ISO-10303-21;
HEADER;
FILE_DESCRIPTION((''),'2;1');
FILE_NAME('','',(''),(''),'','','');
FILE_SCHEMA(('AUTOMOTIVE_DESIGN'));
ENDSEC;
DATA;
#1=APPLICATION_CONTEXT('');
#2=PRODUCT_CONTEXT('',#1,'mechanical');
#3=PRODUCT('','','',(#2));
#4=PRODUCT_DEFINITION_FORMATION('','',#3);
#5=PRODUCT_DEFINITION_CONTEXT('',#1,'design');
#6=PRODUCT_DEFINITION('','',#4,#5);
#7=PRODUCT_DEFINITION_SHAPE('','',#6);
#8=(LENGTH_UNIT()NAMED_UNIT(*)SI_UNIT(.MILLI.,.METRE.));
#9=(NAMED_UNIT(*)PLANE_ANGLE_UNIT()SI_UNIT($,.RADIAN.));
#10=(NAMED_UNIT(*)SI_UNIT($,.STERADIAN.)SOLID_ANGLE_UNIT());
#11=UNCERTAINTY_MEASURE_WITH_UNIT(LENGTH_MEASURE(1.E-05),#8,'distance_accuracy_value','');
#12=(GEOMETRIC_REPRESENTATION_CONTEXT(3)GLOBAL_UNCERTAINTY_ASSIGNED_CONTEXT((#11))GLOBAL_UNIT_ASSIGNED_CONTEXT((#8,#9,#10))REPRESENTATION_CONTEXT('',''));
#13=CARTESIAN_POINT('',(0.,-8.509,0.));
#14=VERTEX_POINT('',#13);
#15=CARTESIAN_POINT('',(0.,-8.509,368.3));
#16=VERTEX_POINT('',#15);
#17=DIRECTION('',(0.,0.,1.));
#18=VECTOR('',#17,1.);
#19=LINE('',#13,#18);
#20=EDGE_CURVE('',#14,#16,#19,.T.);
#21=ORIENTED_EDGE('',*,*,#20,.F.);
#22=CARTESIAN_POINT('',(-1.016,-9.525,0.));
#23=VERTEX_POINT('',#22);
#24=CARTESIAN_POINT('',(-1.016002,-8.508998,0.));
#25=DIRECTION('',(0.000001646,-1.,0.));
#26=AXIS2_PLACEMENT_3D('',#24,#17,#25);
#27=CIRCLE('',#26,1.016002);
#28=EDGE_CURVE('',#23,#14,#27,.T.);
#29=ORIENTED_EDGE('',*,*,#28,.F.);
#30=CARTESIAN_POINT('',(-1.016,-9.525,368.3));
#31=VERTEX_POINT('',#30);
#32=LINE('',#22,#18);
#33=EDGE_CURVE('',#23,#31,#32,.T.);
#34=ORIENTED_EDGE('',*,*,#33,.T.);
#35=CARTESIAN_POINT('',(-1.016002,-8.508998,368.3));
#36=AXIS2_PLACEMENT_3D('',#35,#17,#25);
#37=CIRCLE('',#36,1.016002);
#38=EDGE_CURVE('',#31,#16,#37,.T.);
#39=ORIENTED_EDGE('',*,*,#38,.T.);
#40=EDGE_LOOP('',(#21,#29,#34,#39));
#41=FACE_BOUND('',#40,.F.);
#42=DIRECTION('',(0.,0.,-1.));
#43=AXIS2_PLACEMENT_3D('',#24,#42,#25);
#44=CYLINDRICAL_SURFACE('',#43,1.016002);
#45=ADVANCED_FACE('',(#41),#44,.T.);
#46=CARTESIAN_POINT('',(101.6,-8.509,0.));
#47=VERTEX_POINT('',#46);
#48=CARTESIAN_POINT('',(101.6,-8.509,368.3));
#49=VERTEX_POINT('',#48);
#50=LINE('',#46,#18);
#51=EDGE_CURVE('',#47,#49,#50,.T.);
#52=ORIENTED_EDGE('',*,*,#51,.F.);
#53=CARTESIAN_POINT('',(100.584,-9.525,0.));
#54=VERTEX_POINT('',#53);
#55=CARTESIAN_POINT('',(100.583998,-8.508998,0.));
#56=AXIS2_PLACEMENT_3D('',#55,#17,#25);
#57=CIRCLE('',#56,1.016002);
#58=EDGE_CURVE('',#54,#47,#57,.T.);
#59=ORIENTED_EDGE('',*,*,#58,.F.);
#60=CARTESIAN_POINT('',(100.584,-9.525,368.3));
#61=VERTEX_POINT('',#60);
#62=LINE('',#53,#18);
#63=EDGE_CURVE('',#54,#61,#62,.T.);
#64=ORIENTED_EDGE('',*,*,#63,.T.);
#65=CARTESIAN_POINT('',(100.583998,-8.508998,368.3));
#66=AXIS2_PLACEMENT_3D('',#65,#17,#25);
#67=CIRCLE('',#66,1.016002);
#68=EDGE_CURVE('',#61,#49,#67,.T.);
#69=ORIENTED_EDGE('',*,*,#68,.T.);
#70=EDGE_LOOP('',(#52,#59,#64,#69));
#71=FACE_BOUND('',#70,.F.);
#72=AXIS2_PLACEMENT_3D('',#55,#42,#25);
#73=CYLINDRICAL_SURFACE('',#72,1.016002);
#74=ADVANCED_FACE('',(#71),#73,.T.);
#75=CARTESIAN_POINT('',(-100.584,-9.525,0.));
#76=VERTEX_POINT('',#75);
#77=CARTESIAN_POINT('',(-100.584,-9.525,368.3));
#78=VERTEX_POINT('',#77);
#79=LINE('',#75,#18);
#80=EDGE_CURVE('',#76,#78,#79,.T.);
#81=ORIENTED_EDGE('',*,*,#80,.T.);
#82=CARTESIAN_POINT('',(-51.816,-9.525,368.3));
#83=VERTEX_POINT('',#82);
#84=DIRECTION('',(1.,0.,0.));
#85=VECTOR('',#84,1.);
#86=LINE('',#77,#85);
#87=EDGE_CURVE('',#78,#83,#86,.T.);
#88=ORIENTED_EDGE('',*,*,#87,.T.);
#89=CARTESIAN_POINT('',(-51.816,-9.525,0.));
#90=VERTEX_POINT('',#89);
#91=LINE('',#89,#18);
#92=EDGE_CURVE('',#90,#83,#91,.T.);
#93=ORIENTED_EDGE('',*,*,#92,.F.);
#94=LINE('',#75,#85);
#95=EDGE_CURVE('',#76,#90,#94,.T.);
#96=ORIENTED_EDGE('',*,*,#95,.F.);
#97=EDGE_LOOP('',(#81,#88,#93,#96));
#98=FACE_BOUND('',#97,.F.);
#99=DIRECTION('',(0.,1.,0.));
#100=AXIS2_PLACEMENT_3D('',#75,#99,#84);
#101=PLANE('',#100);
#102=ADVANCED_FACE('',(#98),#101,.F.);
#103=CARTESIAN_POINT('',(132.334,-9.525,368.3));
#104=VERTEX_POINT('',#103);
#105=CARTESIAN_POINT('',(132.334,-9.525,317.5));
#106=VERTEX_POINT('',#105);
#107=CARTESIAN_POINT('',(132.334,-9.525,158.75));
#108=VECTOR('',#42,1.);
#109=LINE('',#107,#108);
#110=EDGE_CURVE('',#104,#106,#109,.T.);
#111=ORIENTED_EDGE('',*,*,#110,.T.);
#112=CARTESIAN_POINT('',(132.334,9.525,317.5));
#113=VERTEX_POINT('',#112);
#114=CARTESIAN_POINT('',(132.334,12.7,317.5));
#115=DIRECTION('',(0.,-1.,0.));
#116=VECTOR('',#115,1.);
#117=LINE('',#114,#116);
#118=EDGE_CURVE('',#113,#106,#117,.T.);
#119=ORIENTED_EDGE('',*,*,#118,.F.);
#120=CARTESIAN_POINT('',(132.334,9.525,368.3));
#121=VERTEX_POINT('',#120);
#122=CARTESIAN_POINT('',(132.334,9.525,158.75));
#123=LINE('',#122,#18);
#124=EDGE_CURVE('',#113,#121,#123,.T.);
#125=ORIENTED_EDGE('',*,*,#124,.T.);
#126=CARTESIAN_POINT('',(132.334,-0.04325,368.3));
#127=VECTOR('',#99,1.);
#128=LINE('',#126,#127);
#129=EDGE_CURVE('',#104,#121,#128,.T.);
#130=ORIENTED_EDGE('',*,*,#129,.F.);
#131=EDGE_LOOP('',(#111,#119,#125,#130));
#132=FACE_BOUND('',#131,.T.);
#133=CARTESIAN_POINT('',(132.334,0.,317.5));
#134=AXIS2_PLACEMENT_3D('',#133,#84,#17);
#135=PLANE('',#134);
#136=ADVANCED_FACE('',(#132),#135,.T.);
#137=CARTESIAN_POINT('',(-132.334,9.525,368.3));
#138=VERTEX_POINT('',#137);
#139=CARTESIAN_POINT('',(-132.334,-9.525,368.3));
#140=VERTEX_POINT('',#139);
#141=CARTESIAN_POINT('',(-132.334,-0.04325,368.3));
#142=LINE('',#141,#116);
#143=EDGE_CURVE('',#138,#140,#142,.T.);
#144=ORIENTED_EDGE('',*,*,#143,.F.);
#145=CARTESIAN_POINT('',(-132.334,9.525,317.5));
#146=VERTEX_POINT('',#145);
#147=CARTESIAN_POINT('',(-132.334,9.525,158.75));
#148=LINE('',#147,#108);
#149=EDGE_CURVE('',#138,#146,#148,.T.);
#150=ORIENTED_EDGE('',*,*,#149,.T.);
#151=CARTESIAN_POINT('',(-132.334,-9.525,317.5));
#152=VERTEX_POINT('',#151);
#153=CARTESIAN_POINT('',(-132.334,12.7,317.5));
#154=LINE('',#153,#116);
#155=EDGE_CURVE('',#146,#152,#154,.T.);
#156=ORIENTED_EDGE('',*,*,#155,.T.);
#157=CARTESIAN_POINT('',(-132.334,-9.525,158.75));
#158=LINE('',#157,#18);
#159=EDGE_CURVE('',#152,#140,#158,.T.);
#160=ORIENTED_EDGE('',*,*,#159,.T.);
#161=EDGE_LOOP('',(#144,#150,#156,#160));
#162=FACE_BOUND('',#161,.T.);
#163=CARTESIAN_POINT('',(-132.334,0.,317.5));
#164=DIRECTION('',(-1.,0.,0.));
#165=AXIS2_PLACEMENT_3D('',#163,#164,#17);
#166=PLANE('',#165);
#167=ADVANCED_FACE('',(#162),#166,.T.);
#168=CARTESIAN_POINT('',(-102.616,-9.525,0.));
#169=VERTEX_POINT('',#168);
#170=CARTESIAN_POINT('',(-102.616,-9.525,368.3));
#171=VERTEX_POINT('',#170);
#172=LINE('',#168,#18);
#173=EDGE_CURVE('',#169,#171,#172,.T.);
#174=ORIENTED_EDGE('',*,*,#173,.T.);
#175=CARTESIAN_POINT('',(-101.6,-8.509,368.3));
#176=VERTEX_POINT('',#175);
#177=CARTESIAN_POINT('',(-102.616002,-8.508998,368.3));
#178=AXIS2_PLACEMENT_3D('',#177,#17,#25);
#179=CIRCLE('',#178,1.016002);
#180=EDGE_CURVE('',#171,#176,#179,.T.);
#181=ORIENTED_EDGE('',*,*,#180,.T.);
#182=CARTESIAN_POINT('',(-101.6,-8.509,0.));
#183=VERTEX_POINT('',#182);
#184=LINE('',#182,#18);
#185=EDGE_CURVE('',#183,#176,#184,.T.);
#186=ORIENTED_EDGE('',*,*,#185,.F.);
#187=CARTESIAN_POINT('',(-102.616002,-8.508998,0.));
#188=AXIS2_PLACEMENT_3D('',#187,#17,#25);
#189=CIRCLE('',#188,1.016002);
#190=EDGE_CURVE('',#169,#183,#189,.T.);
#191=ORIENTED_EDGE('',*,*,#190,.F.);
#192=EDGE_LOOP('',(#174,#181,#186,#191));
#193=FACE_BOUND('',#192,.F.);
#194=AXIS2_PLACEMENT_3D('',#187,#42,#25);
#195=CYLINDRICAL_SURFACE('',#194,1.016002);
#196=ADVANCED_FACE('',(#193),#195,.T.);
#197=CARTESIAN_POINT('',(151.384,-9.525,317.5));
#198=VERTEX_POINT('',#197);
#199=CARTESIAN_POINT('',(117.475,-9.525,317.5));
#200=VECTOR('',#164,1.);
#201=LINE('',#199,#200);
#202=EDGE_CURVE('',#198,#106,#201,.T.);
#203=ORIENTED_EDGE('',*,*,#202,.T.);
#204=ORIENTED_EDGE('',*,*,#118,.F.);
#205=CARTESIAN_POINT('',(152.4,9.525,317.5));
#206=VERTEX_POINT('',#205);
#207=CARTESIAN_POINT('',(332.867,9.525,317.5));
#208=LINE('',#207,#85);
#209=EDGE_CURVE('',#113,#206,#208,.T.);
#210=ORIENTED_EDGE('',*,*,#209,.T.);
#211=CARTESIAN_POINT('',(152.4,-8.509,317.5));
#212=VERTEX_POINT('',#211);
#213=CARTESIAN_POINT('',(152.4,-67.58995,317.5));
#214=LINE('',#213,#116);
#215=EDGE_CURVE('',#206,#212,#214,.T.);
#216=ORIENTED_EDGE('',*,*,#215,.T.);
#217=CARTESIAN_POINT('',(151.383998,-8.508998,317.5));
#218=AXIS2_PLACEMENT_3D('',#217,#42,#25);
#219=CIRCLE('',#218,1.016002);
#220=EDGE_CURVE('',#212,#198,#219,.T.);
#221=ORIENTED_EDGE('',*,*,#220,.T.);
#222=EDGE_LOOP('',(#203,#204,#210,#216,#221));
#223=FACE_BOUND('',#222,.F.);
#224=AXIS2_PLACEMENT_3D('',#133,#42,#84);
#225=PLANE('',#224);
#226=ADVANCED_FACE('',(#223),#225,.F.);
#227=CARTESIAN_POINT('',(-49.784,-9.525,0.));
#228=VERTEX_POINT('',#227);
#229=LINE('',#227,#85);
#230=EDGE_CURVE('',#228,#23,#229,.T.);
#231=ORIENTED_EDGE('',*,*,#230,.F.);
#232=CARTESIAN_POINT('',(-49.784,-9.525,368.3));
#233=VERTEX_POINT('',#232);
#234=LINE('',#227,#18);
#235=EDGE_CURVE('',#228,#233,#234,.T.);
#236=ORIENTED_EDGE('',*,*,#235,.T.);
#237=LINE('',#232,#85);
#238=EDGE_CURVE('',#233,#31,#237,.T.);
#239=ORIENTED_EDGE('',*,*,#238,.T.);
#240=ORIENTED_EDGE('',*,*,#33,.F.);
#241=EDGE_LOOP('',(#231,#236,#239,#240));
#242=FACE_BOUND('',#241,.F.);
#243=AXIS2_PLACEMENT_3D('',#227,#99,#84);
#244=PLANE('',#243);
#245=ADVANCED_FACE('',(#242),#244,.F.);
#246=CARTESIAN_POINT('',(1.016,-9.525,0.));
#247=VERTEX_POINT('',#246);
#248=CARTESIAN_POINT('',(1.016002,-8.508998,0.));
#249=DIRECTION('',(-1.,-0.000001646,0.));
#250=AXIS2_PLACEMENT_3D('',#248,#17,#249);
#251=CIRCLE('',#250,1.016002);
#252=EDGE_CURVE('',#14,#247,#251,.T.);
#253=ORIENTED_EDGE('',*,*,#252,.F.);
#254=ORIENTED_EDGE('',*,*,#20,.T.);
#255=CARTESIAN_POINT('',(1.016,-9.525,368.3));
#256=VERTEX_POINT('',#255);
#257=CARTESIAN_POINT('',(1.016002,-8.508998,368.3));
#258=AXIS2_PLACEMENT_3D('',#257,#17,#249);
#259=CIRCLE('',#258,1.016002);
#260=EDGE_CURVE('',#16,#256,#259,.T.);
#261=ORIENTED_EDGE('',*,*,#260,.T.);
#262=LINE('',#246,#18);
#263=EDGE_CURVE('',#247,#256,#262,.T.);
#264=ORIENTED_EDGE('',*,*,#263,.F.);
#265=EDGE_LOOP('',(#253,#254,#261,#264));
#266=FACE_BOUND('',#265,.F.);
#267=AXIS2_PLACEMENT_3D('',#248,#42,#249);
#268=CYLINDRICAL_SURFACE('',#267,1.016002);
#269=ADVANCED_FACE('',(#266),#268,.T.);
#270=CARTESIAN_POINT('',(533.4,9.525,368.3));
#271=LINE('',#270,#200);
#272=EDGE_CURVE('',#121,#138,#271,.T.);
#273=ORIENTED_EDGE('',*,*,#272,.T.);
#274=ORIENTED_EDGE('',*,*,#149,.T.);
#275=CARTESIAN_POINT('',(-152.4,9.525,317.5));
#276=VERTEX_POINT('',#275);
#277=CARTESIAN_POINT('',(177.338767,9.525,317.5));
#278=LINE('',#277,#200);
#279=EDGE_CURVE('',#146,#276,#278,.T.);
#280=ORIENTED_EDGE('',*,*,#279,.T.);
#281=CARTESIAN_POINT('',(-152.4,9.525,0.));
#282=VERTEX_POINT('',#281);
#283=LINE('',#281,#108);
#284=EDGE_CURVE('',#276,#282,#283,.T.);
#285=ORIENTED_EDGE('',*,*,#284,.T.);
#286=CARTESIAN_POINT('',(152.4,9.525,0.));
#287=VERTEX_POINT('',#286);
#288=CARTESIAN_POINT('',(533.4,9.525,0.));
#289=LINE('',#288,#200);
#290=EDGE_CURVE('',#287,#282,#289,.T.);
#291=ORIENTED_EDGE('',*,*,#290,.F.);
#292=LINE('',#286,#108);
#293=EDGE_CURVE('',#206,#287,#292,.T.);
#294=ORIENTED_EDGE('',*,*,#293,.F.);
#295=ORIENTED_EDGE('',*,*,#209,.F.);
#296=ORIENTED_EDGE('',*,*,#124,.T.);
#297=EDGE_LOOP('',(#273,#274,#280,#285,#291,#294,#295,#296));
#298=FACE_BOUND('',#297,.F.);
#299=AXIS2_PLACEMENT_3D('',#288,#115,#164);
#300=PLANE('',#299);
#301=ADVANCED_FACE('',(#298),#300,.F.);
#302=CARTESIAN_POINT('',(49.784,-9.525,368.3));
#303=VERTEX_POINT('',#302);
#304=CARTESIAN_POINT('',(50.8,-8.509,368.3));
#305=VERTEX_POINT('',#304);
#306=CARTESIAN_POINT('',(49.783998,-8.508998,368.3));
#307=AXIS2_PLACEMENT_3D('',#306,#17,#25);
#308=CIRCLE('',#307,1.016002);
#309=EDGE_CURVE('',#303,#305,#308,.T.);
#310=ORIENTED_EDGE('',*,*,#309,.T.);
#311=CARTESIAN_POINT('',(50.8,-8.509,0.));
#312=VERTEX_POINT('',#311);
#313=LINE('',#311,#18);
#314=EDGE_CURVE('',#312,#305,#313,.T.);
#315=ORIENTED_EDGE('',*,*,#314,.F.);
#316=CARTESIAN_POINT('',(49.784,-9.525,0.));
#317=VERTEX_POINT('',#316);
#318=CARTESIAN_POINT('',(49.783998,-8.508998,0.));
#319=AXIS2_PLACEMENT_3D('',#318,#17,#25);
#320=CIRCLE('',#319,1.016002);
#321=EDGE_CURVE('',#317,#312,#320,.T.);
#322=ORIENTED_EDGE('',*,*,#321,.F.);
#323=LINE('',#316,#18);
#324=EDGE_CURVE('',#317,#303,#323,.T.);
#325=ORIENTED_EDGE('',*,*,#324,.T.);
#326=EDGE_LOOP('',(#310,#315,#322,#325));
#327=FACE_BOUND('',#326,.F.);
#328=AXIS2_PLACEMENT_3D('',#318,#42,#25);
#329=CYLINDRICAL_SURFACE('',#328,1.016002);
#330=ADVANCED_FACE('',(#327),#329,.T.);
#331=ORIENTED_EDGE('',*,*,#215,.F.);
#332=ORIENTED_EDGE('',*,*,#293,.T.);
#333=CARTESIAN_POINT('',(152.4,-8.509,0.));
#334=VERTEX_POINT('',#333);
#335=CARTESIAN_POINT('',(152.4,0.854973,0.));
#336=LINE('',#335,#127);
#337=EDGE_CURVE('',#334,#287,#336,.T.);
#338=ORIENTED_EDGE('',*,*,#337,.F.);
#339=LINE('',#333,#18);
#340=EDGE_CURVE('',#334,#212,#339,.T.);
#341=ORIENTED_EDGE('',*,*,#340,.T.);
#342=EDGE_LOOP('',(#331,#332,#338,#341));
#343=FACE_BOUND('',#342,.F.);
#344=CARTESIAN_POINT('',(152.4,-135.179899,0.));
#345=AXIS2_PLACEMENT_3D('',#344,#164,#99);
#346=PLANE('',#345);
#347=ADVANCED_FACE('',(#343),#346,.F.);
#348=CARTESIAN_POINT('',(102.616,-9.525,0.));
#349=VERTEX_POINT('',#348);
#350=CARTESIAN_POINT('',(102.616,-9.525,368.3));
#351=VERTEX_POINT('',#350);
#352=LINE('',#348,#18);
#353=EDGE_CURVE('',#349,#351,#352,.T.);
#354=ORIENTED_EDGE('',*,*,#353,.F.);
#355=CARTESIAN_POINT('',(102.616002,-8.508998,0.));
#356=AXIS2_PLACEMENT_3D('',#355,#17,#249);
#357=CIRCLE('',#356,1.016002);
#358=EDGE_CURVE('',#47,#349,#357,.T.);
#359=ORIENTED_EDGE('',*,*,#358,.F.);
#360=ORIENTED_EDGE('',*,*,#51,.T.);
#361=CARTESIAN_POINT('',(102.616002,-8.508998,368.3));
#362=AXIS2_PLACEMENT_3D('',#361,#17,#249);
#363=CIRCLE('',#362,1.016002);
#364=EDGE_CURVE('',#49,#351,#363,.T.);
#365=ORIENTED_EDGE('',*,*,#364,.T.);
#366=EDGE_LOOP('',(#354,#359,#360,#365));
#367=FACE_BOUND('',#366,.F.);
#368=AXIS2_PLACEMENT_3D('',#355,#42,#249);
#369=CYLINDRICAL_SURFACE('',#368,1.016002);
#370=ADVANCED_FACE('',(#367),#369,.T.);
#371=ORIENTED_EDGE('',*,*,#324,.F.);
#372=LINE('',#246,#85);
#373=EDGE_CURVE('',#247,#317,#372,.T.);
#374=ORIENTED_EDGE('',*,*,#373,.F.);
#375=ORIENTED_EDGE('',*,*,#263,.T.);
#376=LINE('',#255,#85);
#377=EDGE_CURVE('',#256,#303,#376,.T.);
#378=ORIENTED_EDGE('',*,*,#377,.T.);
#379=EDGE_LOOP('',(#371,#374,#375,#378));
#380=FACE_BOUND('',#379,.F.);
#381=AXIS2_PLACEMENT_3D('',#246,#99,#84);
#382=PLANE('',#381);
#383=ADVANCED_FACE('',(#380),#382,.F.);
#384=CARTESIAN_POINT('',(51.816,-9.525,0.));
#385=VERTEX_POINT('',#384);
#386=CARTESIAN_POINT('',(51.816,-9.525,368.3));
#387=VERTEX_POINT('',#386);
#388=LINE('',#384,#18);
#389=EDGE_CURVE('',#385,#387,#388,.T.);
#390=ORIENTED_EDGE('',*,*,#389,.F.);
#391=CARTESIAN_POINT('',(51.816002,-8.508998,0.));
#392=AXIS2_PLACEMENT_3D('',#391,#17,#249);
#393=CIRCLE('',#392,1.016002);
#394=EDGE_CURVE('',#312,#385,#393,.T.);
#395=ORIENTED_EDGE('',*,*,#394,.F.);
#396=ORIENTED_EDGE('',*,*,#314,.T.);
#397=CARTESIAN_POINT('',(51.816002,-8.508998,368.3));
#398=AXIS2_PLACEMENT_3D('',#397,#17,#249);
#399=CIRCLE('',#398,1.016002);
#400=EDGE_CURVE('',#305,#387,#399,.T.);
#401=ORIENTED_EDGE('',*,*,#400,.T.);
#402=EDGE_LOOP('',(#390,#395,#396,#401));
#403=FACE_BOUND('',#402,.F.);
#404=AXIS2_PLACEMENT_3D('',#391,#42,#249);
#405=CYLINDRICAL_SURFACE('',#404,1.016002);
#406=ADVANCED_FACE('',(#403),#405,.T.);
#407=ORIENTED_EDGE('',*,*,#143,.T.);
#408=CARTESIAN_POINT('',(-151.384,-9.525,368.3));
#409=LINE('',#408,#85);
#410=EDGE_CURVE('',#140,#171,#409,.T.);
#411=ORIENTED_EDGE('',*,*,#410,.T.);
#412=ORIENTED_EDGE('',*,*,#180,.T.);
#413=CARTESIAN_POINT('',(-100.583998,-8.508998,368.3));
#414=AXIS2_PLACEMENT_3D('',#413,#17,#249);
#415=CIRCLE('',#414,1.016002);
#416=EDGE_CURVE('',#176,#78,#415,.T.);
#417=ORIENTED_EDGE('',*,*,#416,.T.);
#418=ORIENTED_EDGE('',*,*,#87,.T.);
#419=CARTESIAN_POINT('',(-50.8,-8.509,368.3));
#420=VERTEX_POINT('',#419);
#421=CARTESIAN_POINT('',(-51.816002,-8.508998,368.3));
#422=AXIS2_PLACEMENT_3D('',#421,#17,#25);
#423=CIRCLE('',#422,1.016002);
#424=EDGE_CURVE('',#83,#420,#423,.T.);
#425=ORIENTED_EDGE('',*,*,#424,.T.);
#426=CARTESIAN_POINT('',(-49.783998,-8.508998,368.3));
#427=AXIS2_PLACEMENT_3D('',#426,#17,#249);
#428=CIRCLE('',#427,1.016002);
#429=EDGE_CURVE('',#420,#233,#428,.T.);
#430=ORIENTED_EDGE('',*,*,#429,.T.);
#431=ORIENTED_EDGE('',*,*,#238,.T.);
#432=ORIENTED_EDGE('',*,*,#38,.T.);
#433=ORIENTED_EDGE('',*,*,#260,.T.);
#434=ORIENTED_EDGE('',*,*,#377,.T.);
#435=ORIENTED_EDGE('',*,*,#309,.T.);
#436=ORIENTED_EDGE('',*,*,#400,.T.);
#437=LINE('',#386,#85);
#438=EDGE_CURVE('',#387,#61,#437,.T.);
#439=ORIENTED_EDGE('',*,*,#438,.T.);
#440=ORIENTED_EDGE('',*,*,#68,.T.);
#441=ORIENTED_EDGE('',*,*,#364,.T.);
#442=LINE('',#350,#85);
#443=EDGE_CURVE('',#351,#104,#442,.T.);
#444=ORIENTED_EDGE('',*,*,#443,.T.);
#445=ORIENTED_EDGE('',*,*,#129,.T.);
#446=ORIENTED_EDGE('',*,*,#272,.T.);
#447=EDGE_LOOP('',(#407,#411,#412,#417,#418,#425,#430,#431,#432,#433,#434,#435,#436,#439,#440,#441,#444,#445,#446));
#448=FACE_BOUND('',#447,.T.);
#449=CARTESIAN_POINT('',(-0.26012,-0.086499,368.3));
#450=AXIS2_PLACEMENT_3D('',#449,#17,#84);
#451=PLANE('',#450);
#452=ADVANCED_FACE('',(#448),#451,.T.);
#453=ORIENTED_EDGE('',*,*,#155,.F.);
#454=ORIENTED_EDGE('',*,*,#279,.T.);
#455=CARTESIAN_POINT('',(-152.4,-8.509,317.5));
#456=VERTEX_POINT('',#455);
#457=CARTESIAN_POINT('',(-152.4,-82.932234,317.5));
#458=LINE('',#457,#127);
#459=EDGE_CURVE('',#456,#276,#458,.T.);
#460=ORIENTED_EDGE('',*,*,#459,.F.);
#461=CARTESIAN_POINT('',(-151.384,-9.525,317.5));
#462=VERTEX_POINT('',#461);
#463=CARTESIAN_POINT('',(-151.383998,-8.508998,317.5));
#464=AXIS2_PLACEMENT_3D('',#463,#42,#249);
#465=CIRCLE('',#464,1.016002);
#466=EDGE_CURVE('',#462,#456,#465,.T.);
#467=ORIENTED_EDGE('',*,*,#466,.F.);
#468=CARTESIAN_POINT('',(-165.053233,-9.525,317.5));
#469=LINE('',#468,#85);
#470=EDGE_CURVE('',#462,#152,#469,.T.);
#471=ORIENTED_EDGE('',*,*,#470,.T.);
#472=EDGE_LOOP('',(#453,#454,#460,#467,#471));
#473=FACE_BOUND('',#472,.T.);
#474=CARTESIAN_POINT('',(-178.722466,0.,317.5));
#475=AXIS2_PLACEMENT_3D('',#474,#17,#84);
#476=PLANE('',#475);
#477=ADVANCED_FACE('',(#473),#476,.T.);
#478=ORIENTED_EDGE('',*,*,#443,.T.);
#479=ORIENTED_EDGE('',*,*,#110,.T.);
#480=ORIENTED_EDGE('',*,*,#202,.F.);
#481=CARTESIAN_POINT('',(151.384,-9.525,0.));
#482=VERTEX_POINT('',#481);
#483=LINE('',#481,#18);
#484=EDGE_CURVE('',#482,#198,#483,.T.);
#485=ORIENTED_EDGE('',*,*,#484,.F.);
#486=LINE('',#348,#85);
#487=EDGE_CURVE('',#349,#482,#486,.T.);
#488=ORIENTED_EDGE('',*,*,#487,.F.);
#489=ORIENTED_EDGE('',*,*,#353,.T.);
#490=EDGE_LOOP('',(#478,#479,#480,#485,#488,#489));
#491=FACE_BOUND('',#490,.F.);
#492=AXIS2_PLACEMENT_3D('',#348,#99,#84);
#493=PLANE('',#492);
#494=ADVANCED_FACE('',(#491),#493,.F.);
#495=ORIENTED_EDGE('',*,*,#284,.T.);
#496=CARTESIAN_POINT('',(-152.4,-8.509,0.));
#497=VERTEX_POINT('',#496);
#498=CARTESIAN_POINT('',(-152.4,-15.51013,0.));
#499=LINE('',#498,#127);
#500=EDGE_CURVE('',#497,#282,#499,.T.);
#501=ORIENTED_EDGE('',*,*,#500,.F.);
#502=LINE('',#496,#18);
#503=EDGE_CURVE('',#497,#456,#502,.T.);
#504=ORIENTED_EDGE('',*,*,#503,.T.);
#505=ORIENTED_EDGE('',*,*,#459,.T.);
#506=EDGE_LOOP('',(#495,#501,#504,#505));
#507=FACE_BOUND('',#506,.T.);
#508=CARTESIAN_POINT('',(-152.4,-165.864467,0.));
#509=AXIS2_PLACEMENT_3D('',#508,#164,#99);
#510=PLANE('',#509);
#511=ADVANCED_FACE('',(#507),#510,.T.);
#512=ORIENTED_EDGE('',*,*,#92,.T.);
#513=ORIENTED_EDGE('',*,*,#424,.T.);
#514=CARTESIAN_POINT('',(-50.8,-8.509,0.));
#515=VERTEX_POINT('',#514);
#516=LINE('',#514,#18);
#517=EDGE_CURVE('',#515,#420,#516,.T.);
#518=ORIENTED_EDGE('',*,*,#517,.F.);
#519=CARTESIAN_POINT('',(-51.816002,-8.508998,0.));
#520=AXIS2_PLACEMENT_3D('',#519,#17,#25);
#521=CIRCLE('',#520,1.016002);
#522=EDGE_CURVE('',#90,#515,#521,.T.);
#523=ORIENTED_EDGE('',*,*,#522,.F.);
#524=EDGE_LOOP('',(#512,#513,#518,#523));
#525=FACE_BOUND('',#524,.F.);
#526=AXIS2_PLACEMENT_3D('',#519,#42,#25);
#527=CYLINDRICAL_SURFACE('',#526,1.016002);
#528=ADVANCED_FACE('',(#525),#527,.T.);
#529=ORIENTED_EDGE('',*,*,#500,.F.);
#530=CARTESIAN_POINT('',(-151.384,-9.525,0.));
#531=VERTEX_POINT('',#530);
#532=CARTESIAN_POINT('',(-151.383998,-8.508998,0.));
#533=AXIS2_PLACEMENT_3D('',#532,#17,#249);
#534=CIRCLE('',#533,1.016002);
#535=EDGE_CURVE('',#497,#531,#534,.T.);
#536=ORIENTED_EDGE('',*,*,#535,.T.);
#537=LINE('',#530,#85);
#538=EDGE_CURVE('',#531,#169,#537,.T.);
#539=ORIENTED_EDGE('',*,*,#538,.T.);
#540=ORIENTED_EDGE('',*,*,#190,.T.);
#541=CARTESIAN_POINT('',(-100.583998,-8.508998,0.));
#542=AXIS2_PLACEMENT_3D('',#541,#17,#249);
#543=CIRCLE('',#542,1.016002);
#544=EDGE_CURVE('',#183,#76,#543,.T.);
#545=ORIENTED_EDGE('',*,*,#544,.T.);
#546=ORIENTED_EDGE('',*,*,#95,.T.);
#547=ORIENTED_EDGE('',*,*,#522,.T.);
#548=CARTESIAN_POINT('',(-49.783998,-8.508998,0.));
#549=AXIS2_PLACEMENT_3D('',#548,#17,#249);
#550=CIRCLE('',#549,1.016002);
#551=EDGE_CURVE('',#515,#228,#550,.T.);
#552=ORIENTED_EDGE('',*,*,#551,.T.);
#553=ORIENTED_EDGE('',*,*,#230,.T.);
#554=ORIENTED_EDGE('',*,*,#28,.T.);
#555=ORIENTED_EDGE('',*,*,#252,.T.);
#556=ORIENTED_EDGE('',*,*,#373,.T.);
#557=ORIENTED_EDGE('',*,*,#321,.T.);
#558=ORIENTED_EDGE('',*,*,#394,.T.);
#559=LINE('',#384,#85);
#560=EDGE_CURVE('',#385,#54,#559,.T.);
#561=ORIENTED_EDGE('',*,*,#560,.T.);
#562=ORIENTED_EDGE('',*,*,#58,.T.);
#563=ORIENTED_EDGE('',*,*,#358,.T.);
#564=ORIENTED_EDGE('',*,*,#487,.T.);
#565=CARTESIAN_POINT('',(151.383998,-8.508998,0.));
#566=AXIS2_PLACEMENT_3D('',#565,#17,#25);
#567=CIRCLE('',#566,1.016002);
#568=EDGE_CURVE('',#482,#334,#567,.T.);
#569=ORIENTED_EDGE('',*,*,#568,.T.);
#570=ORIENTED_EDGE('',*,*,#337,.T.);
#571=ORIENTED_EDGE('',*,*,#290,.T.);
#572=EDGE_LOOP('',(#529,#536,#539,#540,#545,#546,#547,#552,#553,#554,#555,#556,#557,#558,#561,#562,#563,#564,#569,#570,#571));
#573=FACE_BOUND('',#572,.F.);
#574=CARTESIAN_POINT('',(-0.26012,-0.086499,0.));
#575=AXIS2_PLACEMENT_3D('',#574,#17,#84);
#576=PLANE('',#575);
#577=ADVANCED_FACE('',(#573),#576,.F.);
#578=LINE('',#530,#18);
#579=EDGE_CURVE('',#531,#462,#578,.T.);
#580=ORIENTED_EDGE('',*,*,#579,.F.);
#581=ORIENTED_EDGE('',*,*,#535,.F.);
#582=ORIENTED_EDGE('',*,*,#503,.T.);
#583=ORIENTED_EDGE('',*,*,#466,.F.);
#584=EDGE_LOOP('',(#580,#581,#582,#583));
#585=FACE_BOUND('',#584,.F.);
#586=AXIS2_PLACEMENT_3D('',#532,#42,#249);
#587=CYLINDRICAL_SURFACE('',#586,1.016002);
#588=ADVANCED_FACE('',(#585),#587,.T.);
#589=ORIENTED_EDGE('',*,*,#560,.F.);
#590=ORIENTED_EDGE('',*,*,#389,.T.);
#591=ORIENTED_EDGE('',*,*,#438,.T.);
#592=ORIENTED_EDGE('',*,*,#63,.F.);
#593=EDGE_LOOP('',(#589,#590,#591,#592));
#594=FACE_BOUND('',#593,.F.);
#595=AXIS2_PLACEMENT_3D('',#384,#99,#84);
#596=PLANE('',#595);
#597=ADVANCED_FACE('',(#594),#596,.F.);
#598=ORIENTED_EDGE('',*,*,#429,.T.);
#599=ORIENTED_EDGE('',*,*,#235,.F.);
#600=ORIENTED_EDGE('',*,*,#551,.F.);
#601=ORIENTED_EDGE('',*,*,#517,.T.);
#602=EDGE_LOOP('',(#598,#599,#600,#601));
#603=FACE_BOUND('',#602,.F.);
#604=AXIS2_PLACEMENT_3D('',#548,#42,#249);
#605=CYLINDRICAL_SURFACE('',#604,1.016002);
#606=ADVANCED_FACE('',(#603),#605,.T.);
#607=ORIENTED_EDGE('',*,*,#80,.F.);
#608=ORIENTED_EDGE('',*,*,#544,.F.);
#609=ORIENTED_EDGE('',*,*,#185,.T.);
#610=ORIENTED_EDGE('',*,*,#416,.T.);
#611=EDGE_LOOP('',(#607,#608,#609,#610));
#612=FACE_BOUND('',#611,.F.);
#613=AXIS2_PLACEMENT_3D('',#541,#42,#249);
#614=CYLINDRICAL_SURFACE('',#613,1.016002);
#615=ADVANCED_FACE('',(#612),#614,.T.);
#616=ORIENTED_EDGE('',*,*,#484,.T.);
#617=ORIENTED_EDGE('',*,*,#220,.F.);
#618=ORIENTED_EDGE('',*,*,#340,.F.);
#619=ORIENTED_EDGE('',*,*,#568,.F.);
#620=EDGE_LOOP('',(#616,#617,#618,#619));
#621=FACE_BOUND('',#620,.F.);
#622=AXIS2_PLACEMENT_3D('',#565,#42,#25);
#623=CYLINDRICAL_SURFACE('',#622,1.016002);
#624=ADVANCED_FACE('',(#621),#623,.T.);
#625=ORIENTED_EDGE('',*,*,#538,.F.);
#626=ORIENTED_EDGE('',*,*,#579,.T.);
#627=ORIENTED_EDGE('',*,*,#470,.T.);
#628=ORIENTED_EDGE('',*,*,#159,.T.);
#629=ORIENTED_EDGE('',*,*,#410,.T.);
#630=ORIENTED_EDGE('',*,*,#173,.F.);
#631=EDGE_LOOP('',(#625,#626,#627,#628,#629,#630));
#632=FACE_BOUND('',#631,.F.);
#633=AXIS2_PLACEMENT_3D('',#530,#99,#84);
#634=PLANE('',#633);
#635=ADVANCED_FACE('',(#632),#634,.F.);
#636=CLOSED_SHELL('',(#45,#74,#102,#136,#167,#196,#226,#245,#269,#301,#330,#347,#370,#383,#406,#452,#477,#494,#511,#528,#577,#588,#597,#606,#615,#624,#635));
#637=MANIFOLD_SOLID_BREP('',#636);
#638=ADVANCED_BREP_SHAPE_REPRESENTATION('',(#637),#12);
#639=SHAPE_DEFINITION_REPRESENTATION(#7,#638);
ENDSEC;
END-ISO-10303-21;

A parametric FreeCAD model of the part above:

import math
import FreeCAD as App
import Part
import Sketcher

V = App.Vector
Q = App.Units.Quantity

doc = App.newDocument("Part")
body = doc.addObject("PartDesign::Body", "Body")

# Sketch on XY plane
sketch1 = body.newObject("Sketcher::SketchObject", "Sketch")
sketch1.AttachmentSupport = (doc.getObject("XY_Plane"), [""])
sketch1.MapMode = "FlatFace"
sketch1.addGeometry(Part.LineSegment(V(458.2, -9.5, 0), V(533.4, -9.5, 0)), False)
sketch1.addGeometry(Part.LineSegment(V(533.4, -9.5, 0), V(533.4, 9.5, 0)), False)
sketch1.addGeometry(Part.LineSegment(V(533.4, 9.5, 0), V(-533.4, 9.5, 0)), False)
sketch1.addGeometry(Part.LineSegment(V(-533.4, 9.5, 0), V(-533.4, -9.5, 0)), False)
sketch1.addGeometry(Part.LineSegment(V(-533.4, -9.5, 0), V(-458.2, -9.5, 0)), False)
sketch1.addGeometry(Part.ArcOfCircle(Part.Circle(V(-458.2, -8.5, 0), V(0, 0, 1), 1), math.radians(-90), math.radians(0)), False)
sketch1.addGeometry(Part.ArcOfCircle(Part.Circle(V(-456.2, -8.5, 0), V(0, 0, 1), 1), math.radians(-180), math.radians(-90)), False)
sketch1.addGeometry(Part.LineSegment(V(-456.2, -9.5, 0), V(-407.4, -9.5, 0)), False)
sketch1.addGeometry(Part.ArcOfCircle(Part.Circle(V(-407.4, -8.5, 0), V(0, 0, 1), 1), math.radians(-90), math.radians(0)), False)
sketch1.addGeometry(Part.ArcOfCircle(Part.Circle(V(-405.4, -8.5, 0), V(0, 0, 1), 1), math.radians(-180), math.radians(-90)), False)
sketch1.addGeometry(Part.LineSegment(V(-405.4, -9.5, 0), V(-356.6, -9.5, 0)), False)
sketch1.addGeometry(Part.ArcOfCircle(Part.Circle(V(-356.6, -8.5, 0), V(0, 0, 1), 1), math.radians(-90), math.radians(0)), False)
sketch1.addGeometry(Part.ArcOfCircle(Part.Circle(V(-354.6, -8.5, 0), V(0, 0, 1), 1), math.radians(-180), math.radians(-90)), False)
sketch1.addGeometry(Part.LineSegment(V(-354.6, -9.5, 0), V(-305.8, -9.5, 0)), False)
sketch1.addGeometry(Part.ArcOfCircle(Part.Circle(V(-305.8, -8.5, 0), V(0, 0, 1), 1), math.radians(-90), math.radians(0)), False)
sketch1.addGeometry(Part.ArcOfCircle(Part.Circle(V(-303.8, -8.5, 0), V(0, 0, 1), 1), math.radians(-180), math.radians(-90)), False)
sketch1.addGeometry(Part.LineSegment(V(-303.8, -9.5, 0), V(-255, -9.5, 0)), False)
sketch1.addGeometry(Part.ArcOfCircle(Part.Circle(V(-255, -8.5, 0), V(0, 0, 1), 1), math.radians(-90), math.radians(0)), False)
sketch1.addGeometry(Part.ArcOfCircle(Part.Circle(V(-253, -8.5, 0), V(0, 0, 1), 1), math.radians(-180), math.radians(-90)), False)
sketch1.addGeometry(Part.LineSegment(V(-253, -9.5, 0), V(-204.2, -9.5, 0)), False)
sketch1.addGeometry(Part.ArcOfCircle(Part.Circle(V(-204.2, -8.5, 0), V(0, 0, 1), 1), math.radians(-90), math.radians(0)), False)
sketch1.addGeometry(Part.ArcOfCircle(Part.Circle(V(-202.2, -8.5, 0), V(0, 0, 1), 1), math.radians(-180), math.radians(-90)), False)
sketch1.addGeometry(Part.LineSegment(V(-202.2, -9.5, 0), V(-153.4, -9.5, 0)), False)
sketch1.addGeometry(Part.ArcOfCircle(Part.Circle(V(-153.4, -8.5, 0), V(0, 0, 1), 1), math.radians(-90), math.radians(0)), False)
sketch1.addGeometry(Part.ArcOfCircle(Part.Circle(V(-151.4, -8.5, 0), V(0, 0, 1), 1), math.radians(-180), math.radians(-90)), False)
sketch1.addGeometry(Part.LineSegment(V(-151.4, -9.5, 0), V(-102.6, -9.5, 0)), False)
sketch1.addGeometry(Part.ArcOfCircle(Part.Circle(V(-102.6, -8.5, 0), V(0, 0, 1), 1), math.radians(-90), math.radians(0)), False)
sketch1.addGeometry(Part.ArcOfCircle(Part.Circle(V(-100.6, -8.5, 0), V(0, 0, 1), 1), math.radians(-180), math.radians(-90)), False)
sketch1.addGeometry(Part.LineSegment(V(-100.6, -9.5, 0), V(-51.8, -9.5, 0)), False)
sketch1.addGeometry(Part.ArcOfCircle(Part.Circle(V(-51.8, -8.5, 0), V(0, 0, 1), 1), math.radians(-90), math.radians(0)), False)
sketch1.addGeometry(Part.ArcOfCircle(Part.Circle(V(-49.8, -8.5, 0), V(0, 0, 1), 1), math.radians(-180), math.radians(-90)), False)
sketch1.addGeometry(Part.LineSegment(V(-49.8, -9.5, 0), V(-1, -9.5, 0)), False)
sketch1.addGeometry(Part.ArcOfCircle(Part.Circle(V(-1, -8.5, 0), V(0, 0, 1), 1), math.radians(-90), math.radians(0)), False)
sketch1.addGeometry(Part.ArcOfCircle(Part.Circle(V(1, -8.5, 0), V(0, 0, 1), 1), math.radians(-180), math.radians(-90)), False)
sketch1.addGeometry(Part.LineSegment(V(1, -9.5, 0), V(49.8, -9.5, 0)), False)
sketch1.addGeometry(Part.ArcOfCircle(Part.Circle(V(49.8, -8.5, 0), V(0, 0, 1), 1), math.radians(-90), math.radians(0)), False)
sketch1.addGeometry(Part.ArcOfCircle(Part.Circle(V(51.8, -8.5, 0), V(0, 0, 1), 1), math.radians(-180), math.radians(-90)), False)
sketch1.addGeometry(Part.LineSegment(V(51.8, -9.5, 0), V(100.6, -9.5, 0)), False)
sketch1.addGeometry(Part.ArcOfCircle(Part.Circle(V(100.6, -8.5, 0), V(0, 0, 1), 1), math.radians(-90), math.radians(0)), False)
sketch1.addGeometry(Part.ArcOfCircle(Part.Circle(V(102.6, -8.5, 0), V(0, 0, 1), 1), math.radians(-180), math.radians(-90)), False)
sketch1.addGeometry(Part.LineSegment(V(102.6, -9.5, 0), V(151.4, -9.5, 0)), False)
sketch1.addGeometry(Part.ArcOfCircle(Part.Circle(V(151.4, -8.5, 0), V(0, 0, 1), 1), math.radians(-90), math.radians(0)), False)
sketch1.addGeometry(Part.ArcOfCircle(Part.Circle(V(153.4, -8.5, 0), V(0, 0, 1), 1), math.radians(-180), math.radians(-90)), False)
sketch1.addGeometry(Part.LineSegment(V(153.4, -9.5, 0), V(202.2, -9.5, 0)), False)
sketch1.addGeometry(Part.ArcOfCircle(Part.Circle(V(202.2, -8.5, 0), V(0, 0, 1), 1), math.radians(-90), math.radians(0)), False)
sketch1.addGeometry(Part.ArcOfCircle(Part.Circle(V(204.2, -8.5, 0), V(0, 0, 1), 1), math.radians(-180), math.radians(-90)), False)
sketch1.addGeometry(Part.LineSegment(V(204.2, -9.5, 0), V(253, -9.5, 0)), False)
sketch1.addGeometry(Part.ArcOfCircle(Part.Circle(V(253, -8.5, 0), V(0, 0, 1), 1), math.radians(-90), math.radians(0)), False)
sketch1.addGeometry(Part.ArcOfCircle(Part.Circle(V(255, -8.5, 0), V(0, 0, 1), 1), math.radians(-180), math.radians(-90)), False)
sketch1.addGeometry(Part.LineSegment(V(255, -9.5, 0), V(303.8, -9.5, 0)), False)
sketch1.addGeometry(Part.ArcOfCircle(Part.Circle(V(303.8, -8.5, 0), V(0, 0, 1), 1), math.radians(-90), math.radians(0)), False)
sketch1.addGeometry(Part.ArcOfCircle(Part.Circle(V(305.8, -8.5, 0), V(0, 0, 1), 1), math.radians(-180), math.radians(-90)), False)
sketch1.addGeometry(Part.LineSegment(V(305.8, -9.5, 0), V(354.6, -9.5, 0)), False)
sketch1.addGeometry(Part.ArcOfCircle(Part.Circle(V(354.6, -8.5, 0), V(0, 0, 1), 1), math.radians(-90), math.radians(0)), False)
sketch1.addGeometry(Part.ArcOfCircle(Part.Circle(V(356.6, -8.5, 0), V(0, 0, 1), 1), math.radians(-180), math.radians(-90)), False)
sketch1.addGeometry(Part.LineSegment(V(356.6, -9.5, 0), V(405.4, -9.5, 0)), False)
sketch1.addGeometry(Part.ArcOfCircle(Part.Circle(V(405.4, -8.5, 0), V(0, 0, 1), 1), math.radians(-90), math.radians(0)), False)
sketch1.addGeometry(Part.ArcOfCircle(Part.Circle(V(407.4, -8.5, 0), V(0, 0, 1), 1), math.radians(-180), math.radians(-90)), False)
sketch1.addGeometry(Part.LineSegment(V(407.4, -9.5, 0), V(456.2, -9.5, 0)), False)
sketch1.addGeometry(Part.ArcOfCircle(Part.Circle(V(456.2, -8.5, 0), V(0, 0, 1), 1), math.radians(-90), math.radians(0)), False)
sketch1.addGeometry(Part.ArcOfCircle(Part.Circle(V(458.2, -8.5, 0), V(0, 0, 1), 1), math.radians(-180), math.radians(-90)), False)
sketch1.addConstraint(Sketcher.Constraint("Coincident", 0, 2, 1, 1))
sketch1.addConstraint(Sketcher.Constraint("Coincident", 1, 2, 2, 1))
sketch1.addConstraint(Sketcher.Constraint("Coincident", 2, 2, 3, 1))
sketch1.addConstraint(Sketcher.Constraint("Coincident", 3, 2, 4, 1))
sketch1.addConstraint(Sketcher.Constraint("Tangent", 4, 2, 5, 1))
sketch1.addConstraint(Sketcher.Constraint("Coincident", 5, 2, 6, 1))
sketch1.addConstraint(Sketcher.Constraint("Tangent", 6, 2, 7, 1))
sketch1.addConstraint(Sketcher.Constraint("Tangent", 7, 2, 8, 1))
sketch1.addConstraint(Sketcher.Constraint("Coincident", 8, 2, 9, 1))
sketch1.addConstraint(Sketcher.Constraint("Tangent", 9, 2, 10, 1))
sketch1.addConstraint(Sketcher.Constraint("Tangent", 10, 2, 11, 1))
sketch1.addConstraint(Sketcher.Constraint("Coincident", 11, 2, 12, 1))
sketch1.addConstraint(Sketcher.Constraint("Tangent", 12, 2, 13, 1))
sketch1.addConstraint(Sketcher.Constraint("Tangent", 13, 2, 14, 1))
sketch1.addConstraint(Sketcher.Constraint("Coincident", 14, 2, 15, 1))
sketch1.addConstraint(Sketcher.Constraint("Tangent", 15, 2, 16, 1))
sketch1.addConstraint(Sketcher.Constraint("Tangent", 16, 2, 17, 1))
sketch1.addConstraint(Sketcher.Constraint("Coincident", 17, 2, 18, 1))
sketch1.addConstraint(Sketcher.Constraint("Tangent", 18, 2, 19, 1))
sketch1.addConstraint(Sketcher.Constraint("Tangent", 19, 2, 20, 1))
sketch1.addConstraint(Sketcher.Constraint("Coincident", 20, 2, 21, 1))
sketch1.addConstraint(Sketcher.Constraint("Tangent", 21, 2, 22, 1))
sketch1.addConstraint(Sketcher.Constraint("Tangent", 22, 2, 23, 1))
sketch1.addConstraint(Sketcher.Constraint("Coincident", 23, 2, 24, 1))
sketch1.addConstraint(Sketcher.Constraint("Tangent", 24, 2, 25, 1))
sketch1.addConstraint(Sketcher.Constraint("Tangent", 25, 2, 26, 1))
sketch1.addConstraint(Sketcher.Constraint("Coincident", 26, 2, 27, 1))
sketch1.addConstraint(Sketcher.Constraint("Tangent", 27, 2, 28, 1))
sketch1.addConstraint(Sketcher.Constraint("Tangent", 28, 2, 29, 1))
sketch1.addConstraint(Sketcher.Constraint("Coincident", 29, 2, 30, 1))
sketch1.addConstraint(Sketcher.Constraint("Tangent", 30, 2, 31, 1))
sketch1.addConstraint(Sketcher.Constraint("Tangent", 31, 2, 32, 1))
sketch1.addConstraint(Sketcher.Constraint("Coincident", 32, 2, 33, 1))
sketch1.addConstraint(Sketcher.Constraint("Tangent", 33, 2, 34, 1))
sketch1.addConstraint(Sketcher.Constraint("Tangent", 34, 2, 35, 1))
sketch1.addConstraint(Sketcher.Constraint("Coincident", 35, 2, 36, 1))
sketch1.addConstraint(Sketcher.Constraint("Tangent", 36, 2, 37, 1))
sketch1.addConstraint(Sketcher.Constraint("Tangent", 37, 2, 38, 1))
sketch1.addConstraint(Sketcher.Constraint("Coincident", 38, 2, 39, 1))
sketch1.addConstraint(Sketcher.Constraint("Tangent", 39, 2, 40, 1))
sketch1.addConstraint(Sketcher.Constraint("Tangent", 40, 2, 41, 1))
sketch1.addConstraint(Sketcher.Constraint("Coincident", 41, 2, 42, 1))
sketch1.addConstraint(Sketcher.Constraint("Tangent", 42, 2, 43, 1))
sketch1.addConstraint(Sketcher.Constraint("Tangent", 43, 2, 44, 1))
sketch1.addConstraint(Sketcher.Constraint("Coincident", 44, 2, 45, 1))
sketch1.addConstraint(Sketcher.Constraint("Tangent", 45, 2, 46, 1))
sketch1.addConstraint(Sketcher.Constraint("Tangent", 46, 2, 47, 1))
sketch1.addConstraint(Sketcher.Constraint("Coincident", 47, 2, 48, 1))
sketch1.addConstraint(Sketcher.Constraint("Tangent", 48, 2, 49, 1))
sketch1.addConstraint(Sketcher.Constraint("Tangent", 49, 2, 50, 1))
sketch1.addConstraint(Sketcher.Constraint("Coincident", 50, 2, 51, 1))
sketch1.addConstraint(Sketcher.Constraint("Tangent", 51, 2, 52, 1))
sketch1.addConstraint(Sketcher.Constraint("Tangent", 52, 2, 53, 1))
sketch1.addConstraint(Sketcher.Constraint("Coincident", 53, 2, 54, 1))
sketch1.addConstraint(Sketcher.Constraint("Tangent", 54, 2, 55, 1))
sketch1.addConstraint(Sketcher.Constraint("Tangent", 55, 2, 56, 1))
sketch1.addConstraint(Sketcher.Constraint("Coincident", 56, 2, 57, 1))
sketch1.addConstraint(Sketcher.Constraint("Tangent", 57, 2, 58, 1))
sketch1.addConstraint(Sketcher.Constraint("Tangent", 58, 2, 59, 1))
sketch1.addConstraint(Sketcher.Constraint("Coincident", 59, 2, 60, 1))
sketch1.addConstraint(Sketcher.Constraint("Tangent", 60, 2, 0, 1))
sketch1.addConstraint(Sketcher.Constraint("Horizontal", 0))
sketch1.addConstraint(Sketcher.Constraint("Vertical", 1))
sketch1.addConstraint(Sketcher.Constraint("Horizontal", 2))
sketch1.addConstraint(Sketcher.Constraint("Vertical", 3))
sketch1.addConstraint(Sketcher.Constraint("Horizontal", 4))
sketch1.addConstraint(Sketcher.Constraint("Horizontal", 7))
sketch1.addConstraint(Sketcher.Constraint("Horizontal", 10))
sketch1.addConstraint(Sketcher.Constraint("Horizontal", 13))
sketch1.addConstraint(Sketcher.Constraint("Horizontal", 16))
sketch1.addConstraint(Sketcher.Constraint("Horizontal", 19))
sketch1.addConstraint(Sketcher.Constraint("Horizontal", 22))
sketch1.addConstraint(Sketcher.Constraint("Horizontal", 25))
sketch1.addConstraint(Sketcher.Constraint("Horizontal", 28))
sketch1.addConstraint(Sketcher.Constraint("Horizontal", 31))
sketch1.addConstraint(Sketcher.Constraint("Horizontal", 34))
sketch1.addConstraint(Sketcher.Constraint("Horizontal", 37))
sketch1.addConstraint(Sketcher.Constraint("Horizontal", 40))
sketch1.addConstraint(Sketcher.Constraint("Horizontal", 43))
sketch1.addConstraint(Sketcher.Constraint("Horizontal", 46))
sketch1.addConstraint(Sketcher.Constraint("Horizontal", 49))
sketch1.addConstraint(Sketcher.Constraint("Horizontal", 52))
sketch1.addConstraint(Sketcher.Constraint("Horizontal", 55))
sketch1.addConstraint(Sketcher.Constraint("Horizontal", 58))
sketch1.addConstraint(Sketcher.Constraint("Equal", 5, 6))
sketch1.addConstraint(Sketcher.Constraint("Equal", 6, 8))
sketch1.addConstraint(Sketcher.Constraint("Equal", 8, 9))
sketch1.addConstraint(Sketcher.Constraint("Equal", 9, 11))
sketch1.addConstraint(Sketcher.Constraint("Equal", 11, 12))
sketch1.addConstraint(Sketcher.Constraint("Equal", 12, 14))
sketch1.addConstraint(Sketcher.Constraint("Equal", 14, 15))
sketch1.addConstraint(Sketcher.Constraint("Equal", 15, 17))
sketch1.addConstraint(Sketcher.Constraint("Equal", 17, 18))
sketch1.addConstraint(Sketcher.Constraint("Equal", 18, 20))
sketch1.addConstraint(Sketcher.Constraint("Equal", 20, 21))
sketch1.addConstraint(Sketcher.Constraint("Equal", 21, 23))
sketch1.addConstraint(Sketcher.Constraint("Equal", 23, 24))
sketch1.addConstraint(Sketcher.Constraint("Equal", 24, 26))
sketch1.addConstraint(Sketcher.Constraint("Equal", 26, 27))
sketch1.addConstraint(Sketcher.Constraint("Equal", 27, 29))
sketch1.addConstraint(Sketcher.Constraint("Equal", 29, 30))
sketch1.addConstraint(Sketcher.Constraint("Equal", 30, 32))
sketch1.addConstraint(Sketcher.Constraint("Equal", 32, 33))
sketch1.addConstraint(Sketcher.Constraint("Equal", 33, 35))
sketch1.addConstraint(Sketcher.Constraint("Equal", 35, 36))
sketch1.addConstraint(Sketcher.Constraint("Equal", 36, 38))
sketch1.addConstraint(Sketcher.Constraint("Equal", 38, 39))
sketch1.addConstraint(Sketcher.Constraint("Equal", 39, 41))
sketch1.addConstraint(Sketcher.Constraint("Equal", 41, 42))
sketch1.addConstraint(Sketcher.Constraint("Equal", 42, 44))
sketch1.addConstraint(Sketcher.Constraint("Equal", 44, 45))
sketch1.addConstraint(Sketcher.Constraint("Equal", 45, 47))
sketch1.addConstraint(Sketcher.Constraint("Equal", 47, 48))
sketch1.addConstraint(Sketcher.Constraint("Equal", 48, 50))
sketch1.addConstraint(Sketcher.Constraint("Equal", 50, 51))
sketch1.addConstraint(Sketcher.Constraint("Equal", 51, 53))
sketch1.addConstraint(Sketcher.Constraint("Equal", 53, 54))
sketch1.addConstraint(Sketcher.Constraint("Equal", 54, 56))
sketch1.addConstraint(Sketcher.Constraint("Equal", 56, 57))
sketch1.addConstraint(Sketcher.Constraint("Equal", 57, 59))
sketch1.addConstraint(Sketcher.Constraint("Equal", 59, 60))
sketch1.addConstraint(Sketcher.Constraint("Symmetric", 0, 2, 2, 2, -1, 1))
sketch1.addConstraint(Sketcher.Constraint("Symmetric", 32, 3, 33, 3, -2))
sketch1.addConstraint(Sketcher.Constraint("Symmetric", 29, 3, 36, 3, -2))
sketch1.addConstraint(Sketcher.Constraint("Symmetric", 26, 3, 39, 3, -2))
sketch1.addConstraint(Sketcher.Constraint("Symmetric", 23, 3, 42, 3, -2))
sketch1.addConstraint(Sketcher.Constraint("Symmetric", 20, 3, 45, 3, -2))
sketch1.addConstraint(Sketcher.Constraint("Symmetric", 17, 3, 48, 3, -2))
sketch1.addConstraint(Sketcher.Constraint("Symmetric", 14, 3, 51, 3, -2))
sketch1.addConstraint(Sketcher.Constraint("Symmetric", 11, 3, 54, 3, -2))
sketch1.addConstraint(Sketcher.Constraint("Symmetric", 8, 3, 57, 3, -2))
sketch1.addConstraint(Sketcher.Constraint("Symmetric", 5, 3, 60, 3, -2))
sketch1.addConstraint(Sketcher.Constraint("Horizontal", 5, 3, 6, 3))
sketch1.addConstraint(Sketcher.Constraint("Horizontal", 8, 3, 9, 3))
sketch1.addConstraint(Sketcher.Constraint("Horizontal", 11, 3, 12, 3))
sketch1.addConstraint(Sketcher.Constraint("Horizontal", 14, 3, 15, 3))
sketch1.addConstraint(Sketcher.Constraint("Horizontal", 17, 3, 18, 3))
sketch1.addConstraint(Sketcher.Constraint("Horizontal", 20, 3, 21, 3))
sketch1.addConstraint(Sketcher.Constraint("Horizontal", 23, 3, 24, 3))
sketch1.addConstraint(Sketcher.Constraint("Horizontal", 26, 3, 27, 3))
sketch1.addConstraint(Sketcher.Constraint("Horizontal", 29, 3, 30, 3))
sketch1.addConstraint(Sketcher.Constraint("Horizontal", 60, 3, 5, 2))
sketch1.addConstraint(Sketcher.Constraint("Horizontal", 5, 2, 8, 2))
sketch1.addConstraint(Sketcher.Constraint("Horizontal", 8, 2, 11, 2))
sketch1.addConstraint(Sketcher.Constraint("Horizontal", 11, 2, 14, 2))
sketch1.addConstraint(Sketcher.Constraint("Horizontal", 14, 2, 17, 2))
sketch1.addConstraint(Sketcher.Constraint("Horizontal", 17, 2, 20, 2))
sketch1.addConstraint(Sketcher.Constraint("Horizontal", 20, 2, 23, 2))
sketch1.addConstraint(Sketcher.Constraint("Horizontal", 23, 2, 26, 2))
sketch1.addConstraint(Sketcher.Constraint("Horizontal", 26, 2, 29, 2))
sketch1.addConstraint(Sketcher.Constraint("Horizontal", 29, 2, 32, 2))
sketch1.addConstraint(Sketcher.Constraint("Horizontal", 32, 2, 35, 2))
sketch1.addConstraint(Sketcher.Constraint("Horizontal", 35, 2, 38, 2))
sketch1.addConstraint(Sketcher.Constraint("Horizontal", 38, 2, 41, 2))
sketch1.addConstraint(Sketcher.Constraint("Horizontal", 41, 2, 44, 2))
sketch1.addConstraint(Sketcher.Constraint("Horizontal", 44, 2, 47, 2))
sketch1.addConstraint(Sketcher.Constraint("Horizontal", 47, 2, 50, 2))
sketch1.addConstraint(Sketcher.Constraint("Horizontal", 50, 2, 53, 2))
sketch1.addConstraint(Sketcher.Constraint("Horizontal", 53, 2, 56, 2))
sketch1.addConstraint(Sketcher.Constraint("Horizontal", 56, 2, 59, 2))
sketch1.addConstraint(Sketcher.Constraint("Equal", 7, 10))
sketch1.addConstraint(Sketcher.Constraint("Equal", 10, 13))
sketch1.addConstraint(Sketcher.Constraint("Equal", 13, 16))
sketch1.addConstraint(Sketcher.Constraint("Equal", 16, 19))
sketch1.addConstraint(Sketcher.Constraint("Equal", 19, 22))
sketch1.addConstraint(Sketcher.Constraint("Equal", 22, 25))
sketch1.addConstraint(Sketcher.Constraint("Equal", 25, 28))
sketch1.addConstraint(Sketcher.Constraint("Equal", 28, 31))
sketch1.addConstraint(Sketcher.Constraint("DistanceX", 2, 2, 2, 1, Q("42 in")))
sketch1.addConstraint(Sketcher.Constraint("Radius", 5, Q("0.0400001 in")))
sketch1.addConstraint(Sketcher.Constraint("DistanceX", 5, 2, -1, 1, Q("18 in")))
sketch1.addConstraint(Sketcher.Constraint("DistanceY", 1, 1, 1, 2, Q("0.75 in")))
pad1 = body.newObject("PartDesign::Pad", "Pad")
pad1.Profile = sketch1
pad1.Length = Q("14.5 in")

# Sketch on XY plane
sketch2 = body.newObject("Sketcher::SketchObject", "Sketch001")
sketch2.AttachmentSupport = (doc.getObject("XY_Plane"), [""])
sketch2.MapMode = "FlatFace"
sketch2.addGeometry(Part.LineSegment(V(-604, 135, 0), V(-604, -166, 0)), False)
sketch2.addGeometry(Part.LineSegment(V(-604, -166, 0), V(-152, -166, 0)), False)
sketch2.addGeometry(Part.LineSegment(V(-152, -166, 0), V(-152, 135, 0)), False)
sketch2.addGeometry(Part.LineSegment(V(-152, 135, 0), V(-604, 135, 0)), False)
sketch2.addGeometry(Part.LineSegment(V(152, 137, 0), V(152, -135, 0)), False)
sketch2.addGeometry(Part.LineSegment(V(152, -135, 0), V(602, -135, 0)), False)
sketch2.addGeometry(Part.LineSegment(V(602, -135, 0), V(602, 137, 0)), False)
sketch2.addGeometry(Part.LineSegment(V(602, 137, 0), V(152, 137, 0)), False)
sketch2.addConstraint(Sketcher.Constraint("Coincident", 0, 2, 1, 1))
sketch2.addConstraint(Sketcher.Constraint("Coincident", 1, 2, 2, 1))
sketch2.addConstraint(Sketcher.Constraint("Coincident", 2, 2, 3, 1))
sketch2.addConstraint(Sketcher.Constraint("Coincident", 3, 2, 0, 1))
sketch2.addConstraint(Sketcher.Constraint("Coincident", 4, 2, 5, 1))
sketch2.addConstraint(Sketcher.Constraint("Coincident", 5, 2, 6, 1))
sketch2.addConstraint(Sketcher.Constraint("Coincident", 6, 2, 7, 1))
sketch2.addConstraint(Sketcher.Constraint("Coincident", 7, 2, 4, 1))
sketch2.addConstraint(Sketcher.Constraint("Vertical", 0))
sketch2.addConstraint(Sketcher.Constraint("Horizontal", 1))
sketch2.addConstraint(Sketcher.Constraint("Vertical", 2))
sketch2.addConstraint(Sketcher.Constraint("Horizontal", 3))
sketch2.addConstraint(Sketcher.Constraint("Vertical", 4))
sketch2.addConstraint(Sketcher.Constraint("Horizontal", 5))
sketch2.addConstraint(Sketcher.Constraint("Vertical", 6))
sketch2.addConstraint(Sketcher.Constraint("Horizontal", 7))
sketch2.addConstraint(Sketcher.Constraint("DistanceX", 1, 2, -1, 1, Q("6 in")))
sketch2.addConstraint(Sketcher.Constraint("DistanceX", -1, 1, 4, 2, Q("6 in")))
sketch2.addConstraint(Sketcher.Constraint("DistanceY", 4, 2, -1, 1, Q("135.179899 mm")))
sketch2.addConstraint(Sketcher.Constraint("DistanceX", 1, 1, 1, 2, Q("452.085844 mm")))
sketch2.addConstraint(Sketcher.Constraint("DistanceX", 5, 1, 5, 2, Q("450.040182 mm")))
sketch2.addConstraint(Sketcher.Constraint("DistanceY", 0, 2, 0, 1, Q("300.708675 mm")))
sketch2.addConstraint(Sketcher.Constraint("DistanceY", 4, 2, 4, 1, Q("272.069744 mm")))
sketch2.addConstraint(Sketcher.Constraint("DistanceY", 1, 2, 4, 2, Q("30.684568 mm")))
pocket1 = body.newObject("PartDesign::Pocket", "Pocket")
pocket1.Profile = sketch2
pocket1.Length = Q("15 in")
pocket1.Reversed = True

# Sketch on XZ plane
sketch3 = body.newObject("Sketcher::SketchObject", "Sketch002")
sketch3.AttachmentSupport = (doc.getObject("XZ_Plane"), [""])
sketch3.MapMode = "FlatFace"
sketch3.addGeometry(Part.LineSegment(V(-179, 429, 0), V(-179, 318, 0)), False)
sketch3.addGeometry(Part.LineSegment(V(-179, 318, 0), V(-132, 318, 0)), False)
sketch3.addGeometry(Part.LineSegment(V(-132, 318, 0), V(-132, 429, 0)), False)
sketch3.addGeometry(Part.LineSegment(V(-132, 429, 0), V(-179, 429, 0)), False)
sketch3.addGeometry(Part.LineSegment(V(132, 448, 0), V(132, 318, 0)), False)
sketch3.addGeometry(Part.LineSegment(V(132, 318, 0), V(199, 318, 0)), False)
sketch3.addGeometry(Part.LineSegment(V(199, 318, 0), V(199, 448, 0)), False)
sketch3.addGeometry(Part.LineSegment(V(199, 448, 0), V(132, 448, 0)), False)
sketch3.addConstraint(Sketcher.Constraint("Coincident", 0, 2, 1, 1))
sketch3.addConstraint(Sketcher.Constraint("Coincident", 1, 2, 2, 1))
sketch3.addConstraint(Sketcher.Constraint("Coincident", 2, 2, 3, 1))
sketch3.addConstraint(Sketcher.Constraint("Coincident", 3, 2, 0, 1))
sketch3.addConstraint(Sketcher.Constraint("Coincident", 4, 2, 5, 1))
sketch3.addConstraint(Sketcher.Constraint("Coincident", 5, 2, 6, 1))
sketch3.addConstraint(Sketcher.Constraint("Coincident", 6, 2, 7, 1))
sketch3.addConstraint(Sketcher.Constraint("Coincident", 7, 2, 4, 1))
sketch3.addConstraint(Sketcher.Constraint("Vertical", 0))
sketch3.addConstraint(Sketcher.Constraint("Horizontal", 1))
sketch3.addConstraint(Sketcher.Constraint("Vertical", 2))
sketch3.addConstraint(Sketcher.Constraint("Horizontal", 3))
sketch3.addConstraint(Sketcher.Constraint("Vertical", 4))
sketch3.addConstraint(Sketcher.Constraint("Horizontal", 5))
sketch3.addConstraint(Sketcher.Constraint("Vertical", 6))
sketch3.addConstraint(Sketcher.Constraint("Horizontal", 7))
sketch3.addConstraint(Sketcher.Constraint("Symmetric", 1, 2, 4, 2, -2))
sketch3.addConstraint(Sketcher.Constraint("DistanceY", -1, 1, 0, 2, Q("12.5 in")))
sketch3.addConstraint(Sketcher.Constraint("DistanceX", 1, 2, -1, 1, Q("5.21 in")))
sketch3.addConstraint(Sketcher.Constraint("DistanceY", 0, 2, 0, 1, Q("111.5514 mm")))
sketch3.addConstraint(Sketcher.Constraint("DistanceX", 1, 1, 1, 2, Q("46.388466 mm")))
sketch3.addConstraint(Sketcher.Constraint("DistanceX", 5, 1, 5, 2, Q("66.730906 mm")))
sketch3.addConstraint(Sketcher.Constraint("DistanceY", 4, 2, 4, 1, Q("130.886974 mm")))
pocket2 = body.newObject("PartDesign::Pocket", "Pocket001")
pocket2.Profile = sketch3
pocket2.Length = Q("1 in")
pocket2.Midplane = True

doc.recompute()
